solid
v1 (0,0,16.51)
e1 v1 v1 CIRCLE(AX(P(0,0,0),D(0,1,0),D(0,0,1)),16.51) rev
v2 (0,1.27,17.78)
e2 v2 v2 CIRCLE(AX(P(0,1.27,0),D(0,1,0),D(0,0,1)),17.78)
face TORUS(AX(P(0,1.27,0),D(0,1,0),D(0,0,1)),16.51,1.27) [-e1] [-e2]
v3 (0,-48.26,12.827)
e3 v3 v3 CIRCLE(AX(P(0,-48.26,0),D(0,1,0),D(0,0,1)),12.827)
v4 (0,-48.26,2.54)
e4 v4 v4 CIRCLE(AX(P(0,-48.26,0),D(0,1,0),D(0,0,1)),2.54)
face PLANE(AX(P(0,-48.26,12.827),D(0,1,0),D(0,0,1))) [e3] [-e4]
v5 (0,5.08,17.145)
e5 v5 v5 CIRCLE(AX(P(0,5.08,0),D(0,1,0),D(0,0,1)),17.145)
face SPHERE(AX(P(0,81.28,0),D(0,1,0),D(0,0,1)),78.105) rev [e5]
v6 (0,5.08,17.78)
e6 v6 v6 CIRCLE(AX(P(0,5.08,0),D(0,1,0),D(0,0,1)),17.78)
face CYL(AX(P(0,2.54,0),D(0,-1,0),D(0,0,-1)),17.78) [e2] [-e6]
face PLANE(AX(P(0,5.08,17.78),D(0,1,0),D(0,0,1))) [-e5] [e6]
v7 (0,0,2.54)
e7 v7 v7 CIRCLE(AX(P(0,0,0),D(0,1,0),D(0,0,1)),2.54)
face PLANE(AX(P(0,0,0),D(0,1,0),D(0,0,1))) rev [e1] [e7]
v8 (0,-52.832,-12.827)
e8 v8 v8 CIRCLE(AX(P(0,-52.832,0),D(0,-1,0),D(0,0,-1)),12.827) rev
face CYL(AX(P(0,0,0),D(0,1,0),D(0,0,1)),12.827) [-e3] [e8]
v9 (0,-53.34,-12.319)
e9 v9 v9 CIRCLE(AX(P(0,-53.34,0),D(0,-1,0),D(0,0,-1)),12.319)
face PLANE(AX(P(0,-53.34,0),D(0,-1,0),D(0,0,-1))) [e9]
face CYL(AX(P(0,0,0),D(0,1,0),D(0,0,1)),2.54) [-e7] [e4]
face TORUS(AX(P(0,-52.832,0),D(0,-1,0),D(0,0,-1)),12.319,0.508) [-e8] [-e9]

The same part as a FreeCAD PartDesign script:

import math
import FreeCAD as App
import Part
import Sketcher
Q = App.Units.Quantity


def edges_at(feature, points):
    """Names of the edges that pass closest to the given points."""
    edges = feature.Shape.Edges
    near = lambda p: min(range(len(edges)), key=lambda i: edges[i].distToShape(Part.Vertex(*p))[0])
    return sorted({f"Edge{near(p) + 1}" for p in points})


def add_polygon(sketch, points):
    """Adds a closed chain of lines whose ends are joined by coincident constraints."""
    first, n = sketch.GeometryCount, len(points)
    for a, b in zip(points, points[1:] + points[:1]):
        sketch.addGeometry(Part.LineSegment(App.Vector(*a, 0), App.Vector(*b, 0)), False)
    for i in range(n):
        sketch.addConstraint(Sketcher.Constraint("Coincident", first + i, 2, first + (i + 1) % n, 1))

doc = App.newDocument("Part")
params = doc.addObject("Spreadsheet::Sheet", "Params")
for row, (alias, value) in enumerate([
    ("sketch1_diameter", "1.4 in"),
    ("pad1_length", "0.1 in"),
    ("sketch2_width", "0.1 in"),
    ("sketch2_width2", "2.1 in"),
    ("sketch2_width3", "1.9 in"),
    ("sketch2_height", "0.7 in"),
    ("sketch2_radius", "3.075 in"),
    ("revolution_angle", "360 deg"),
    ("fillet_radius", "0.02 in"),
    ("fillet2_radius", "0.05 in"),
], start=1):
    params.set(f"A{row}", alias)
    params.set(f"B{row}", "=" + value)
    params.setAlias(f"B{row}", alias)

body = doc.addObject("PartDesign::Body", "Body")

# Sketch on XZ plane
sketch1 = body.newObject("Sketcher::SketchObject", "Sketch")
sketch1.AttachmentSupport = (doc.getObject("XZ_Plane"), [""])
sketch1.MapMode = "FlatFace"
sketch1.addGeometry(Part.Circle(App.Vector(0, 0, 0), App.Vector(0, 0, 1), 18), False)
sketch1.addConstraint(Sketcher.Constraint("Coincident", 0, 3, -1, 1))
sketch1.addConstraint(Sketcher.Constraint("Diameter", 0, Q("1.4 in")))
sketch1.setExpression("Constraints[1]", "Params.sketch1_diameter")
pad1 = body.newObject("PartDesign::Pad", "Pad")
pad1.Profile = sketch1
pad1.setExpression("Length", "Params.pad1_length")
pad1.Reversed = True

# Sketch on YZ plane
sketch2 = body.newObject("Sketcher::SketchObject", "Sketch001")
sketch2.AttachmentSupport = (doc.getObject("YZ_Plane"), [""])
sketch2.MapMode = "FlatFace"
sketch2.addGeometry(Part.LineSegment(App.Vector(5.1, 17.8, 0), App.Vector(2.5, 17.8, 0)), False)  # 0
sketch2.addGeometry(Part.LineSegment(App.Vector(2.5, 17.8, 0), App.Vector(2.5, 0, 0)), False)  # 1
sketch2.addGeometry(Part.LineSegment(App.Vector(2.5, 0, 0), App.Vector(3.2, 0, 0)), False)  # 2
sketch2.addGeometry(Part.ArcOfCircle(Part.Circle(App.Vector(81.3, 0, 0), App.Vector(0, 0, 1), 78.1), math.radians(167.32), math.radians(180)), False)  # 3
sketch2.addGeometry(Part.LineSegment(App.Vector(5.1, 17.1, 0), App.Vector(5.1, 17.8, 0)), False)  # 4
add_polygon(sketch2, [(-53.3, 0), (0, 0), (0, 2.5), (-48.3, 2.5), (-48.3, 12.8), (-53.3, 12.8)])  # lines 5-10
sketch2.addConstraint(Sketcher.Constraint("Coincident", 0, 2, 1, 1))
sketch2.addConstraint(Sketcher.Constraint("Coincident", 1, 2, 2, 1))
sketch2.addConstraint(Sketcher.Constraint("Coincident", 2, 2, 3, 2))
sketch2.addConstraint(Sketcher.Constraint("Coincident", 3, 1, 4, 1))
sketch2.addConstraint(Sketcher.Constraint("Coincident", 4, 2, 0, 1))
sketch2.addConstraint(Sketcher.Constraint("Horizontal", 0))
sketch2.addConstraint(Sketcher.Constraint("Vertical", 1))
sketch2.addConstraint(Sketcher.Constraint("Horizontal", 2))
sketch2.addConstraint(Sketcher.Constraint("Vertical", 4))
sketch2.addConstraint(Sketcher.Constraint("Horizontal", 5))
sketch2.addConstraint(Sketcher.Constraint("Vertical", 6))
sketch2.addConstraint(Sketcher.Constraint("Horizontal", 7))
sketch2.addConstraint(Sketcher.Constraint("Vertical", 8))
sketch2.addConstraint(Sketcher.Constraint("Horizontal", 9))
sketch2.addConstraint(Sketcher.Constraint("Vertical", 10))
sketch2.addConstraint(Sketcher.Constraint("Coincident", 5, 2, -1, 1))
sketch2.addConstraint(Sketcher.Constraint("PointOnObject", 3, 3, -1))
sketch2.addConstraint(Sketcher.Constraint("PointOnObject", 1, 2, -1))
sketch2.addConstraint(Sketcher.Constraint("Equal", 2, 4))
sketch2.addConstraint(Sketcher.Constraint("Equal", 0, 6))
sketch2.addConstraint(Sketcher.Constraint("DistanceX", 0, 2, 0, 1, Q("0.1 in")))
sketch2.addConstraint(Sketcher.Constraint("DistanceX", 5, 1, 5, 2, Q("2.1 in")))
sketch2.addConstraint(Sketcher.Constraint("DistanceX", 7, 2, 7, 1, Q("1.9 in")))
sketch2.addConstraint(Sketcher.Constraint("DistanceY", 1, 2, 1, 1, Q("0.7 in")))
sketch2.addConstraint(Sketcher.Constraint("Radius", 3, Q("3.075 in")))
sketch2.addConstraint(Sketcher.Constraint("DistanceX", 7, 2, 1, 2, Q("2 in")))
sketch2.addConstraint(Sketcher.Constraint("DistanceY", 8, 1, 8, 2, Q("0.405 in")))
sketch2.setExpression("Constraints[26]", "Params.sketch2_width")
sketch2.setExpression("Constraints[27]", "Params.sketch2_width2")
sketch2.setExpression("Constraints[28]", "Params.sketch2_width3")
sketch2.setExpression("Constraints[29]", "Params.sketch2_height")
sketch2.setExpression("Constraints[30]", "Params.sketch2_radius")
revolution = body.newObject("PartDesign::Revolution", "Revolution")
revolution.Profile = sketch2
revolution.ReferenceAxis = (sketch2, ["H_Axis"])
revolution.setExpression("Angle", "Params.revolution_angle")
doc.recompute()

fillet = body.newObject("PartDesign::Fillet", "Fillet")
fillet.Base = (revolution, edges_at(revolution, [(0, -53.34, -12.827)]))
fillet.setExpression("Radius", "Params.fillet_radius")
doc.recompute()

fillet2 = body.newObject("PartDesign::Fillet", "Fillet001")
fillet2.Base = (fillet, edges_at(fillet, [(-17.78, 0, 0)]))
fillet2.setExpression("Radius", "Params.fillet2_radius")

doc.recompute()
